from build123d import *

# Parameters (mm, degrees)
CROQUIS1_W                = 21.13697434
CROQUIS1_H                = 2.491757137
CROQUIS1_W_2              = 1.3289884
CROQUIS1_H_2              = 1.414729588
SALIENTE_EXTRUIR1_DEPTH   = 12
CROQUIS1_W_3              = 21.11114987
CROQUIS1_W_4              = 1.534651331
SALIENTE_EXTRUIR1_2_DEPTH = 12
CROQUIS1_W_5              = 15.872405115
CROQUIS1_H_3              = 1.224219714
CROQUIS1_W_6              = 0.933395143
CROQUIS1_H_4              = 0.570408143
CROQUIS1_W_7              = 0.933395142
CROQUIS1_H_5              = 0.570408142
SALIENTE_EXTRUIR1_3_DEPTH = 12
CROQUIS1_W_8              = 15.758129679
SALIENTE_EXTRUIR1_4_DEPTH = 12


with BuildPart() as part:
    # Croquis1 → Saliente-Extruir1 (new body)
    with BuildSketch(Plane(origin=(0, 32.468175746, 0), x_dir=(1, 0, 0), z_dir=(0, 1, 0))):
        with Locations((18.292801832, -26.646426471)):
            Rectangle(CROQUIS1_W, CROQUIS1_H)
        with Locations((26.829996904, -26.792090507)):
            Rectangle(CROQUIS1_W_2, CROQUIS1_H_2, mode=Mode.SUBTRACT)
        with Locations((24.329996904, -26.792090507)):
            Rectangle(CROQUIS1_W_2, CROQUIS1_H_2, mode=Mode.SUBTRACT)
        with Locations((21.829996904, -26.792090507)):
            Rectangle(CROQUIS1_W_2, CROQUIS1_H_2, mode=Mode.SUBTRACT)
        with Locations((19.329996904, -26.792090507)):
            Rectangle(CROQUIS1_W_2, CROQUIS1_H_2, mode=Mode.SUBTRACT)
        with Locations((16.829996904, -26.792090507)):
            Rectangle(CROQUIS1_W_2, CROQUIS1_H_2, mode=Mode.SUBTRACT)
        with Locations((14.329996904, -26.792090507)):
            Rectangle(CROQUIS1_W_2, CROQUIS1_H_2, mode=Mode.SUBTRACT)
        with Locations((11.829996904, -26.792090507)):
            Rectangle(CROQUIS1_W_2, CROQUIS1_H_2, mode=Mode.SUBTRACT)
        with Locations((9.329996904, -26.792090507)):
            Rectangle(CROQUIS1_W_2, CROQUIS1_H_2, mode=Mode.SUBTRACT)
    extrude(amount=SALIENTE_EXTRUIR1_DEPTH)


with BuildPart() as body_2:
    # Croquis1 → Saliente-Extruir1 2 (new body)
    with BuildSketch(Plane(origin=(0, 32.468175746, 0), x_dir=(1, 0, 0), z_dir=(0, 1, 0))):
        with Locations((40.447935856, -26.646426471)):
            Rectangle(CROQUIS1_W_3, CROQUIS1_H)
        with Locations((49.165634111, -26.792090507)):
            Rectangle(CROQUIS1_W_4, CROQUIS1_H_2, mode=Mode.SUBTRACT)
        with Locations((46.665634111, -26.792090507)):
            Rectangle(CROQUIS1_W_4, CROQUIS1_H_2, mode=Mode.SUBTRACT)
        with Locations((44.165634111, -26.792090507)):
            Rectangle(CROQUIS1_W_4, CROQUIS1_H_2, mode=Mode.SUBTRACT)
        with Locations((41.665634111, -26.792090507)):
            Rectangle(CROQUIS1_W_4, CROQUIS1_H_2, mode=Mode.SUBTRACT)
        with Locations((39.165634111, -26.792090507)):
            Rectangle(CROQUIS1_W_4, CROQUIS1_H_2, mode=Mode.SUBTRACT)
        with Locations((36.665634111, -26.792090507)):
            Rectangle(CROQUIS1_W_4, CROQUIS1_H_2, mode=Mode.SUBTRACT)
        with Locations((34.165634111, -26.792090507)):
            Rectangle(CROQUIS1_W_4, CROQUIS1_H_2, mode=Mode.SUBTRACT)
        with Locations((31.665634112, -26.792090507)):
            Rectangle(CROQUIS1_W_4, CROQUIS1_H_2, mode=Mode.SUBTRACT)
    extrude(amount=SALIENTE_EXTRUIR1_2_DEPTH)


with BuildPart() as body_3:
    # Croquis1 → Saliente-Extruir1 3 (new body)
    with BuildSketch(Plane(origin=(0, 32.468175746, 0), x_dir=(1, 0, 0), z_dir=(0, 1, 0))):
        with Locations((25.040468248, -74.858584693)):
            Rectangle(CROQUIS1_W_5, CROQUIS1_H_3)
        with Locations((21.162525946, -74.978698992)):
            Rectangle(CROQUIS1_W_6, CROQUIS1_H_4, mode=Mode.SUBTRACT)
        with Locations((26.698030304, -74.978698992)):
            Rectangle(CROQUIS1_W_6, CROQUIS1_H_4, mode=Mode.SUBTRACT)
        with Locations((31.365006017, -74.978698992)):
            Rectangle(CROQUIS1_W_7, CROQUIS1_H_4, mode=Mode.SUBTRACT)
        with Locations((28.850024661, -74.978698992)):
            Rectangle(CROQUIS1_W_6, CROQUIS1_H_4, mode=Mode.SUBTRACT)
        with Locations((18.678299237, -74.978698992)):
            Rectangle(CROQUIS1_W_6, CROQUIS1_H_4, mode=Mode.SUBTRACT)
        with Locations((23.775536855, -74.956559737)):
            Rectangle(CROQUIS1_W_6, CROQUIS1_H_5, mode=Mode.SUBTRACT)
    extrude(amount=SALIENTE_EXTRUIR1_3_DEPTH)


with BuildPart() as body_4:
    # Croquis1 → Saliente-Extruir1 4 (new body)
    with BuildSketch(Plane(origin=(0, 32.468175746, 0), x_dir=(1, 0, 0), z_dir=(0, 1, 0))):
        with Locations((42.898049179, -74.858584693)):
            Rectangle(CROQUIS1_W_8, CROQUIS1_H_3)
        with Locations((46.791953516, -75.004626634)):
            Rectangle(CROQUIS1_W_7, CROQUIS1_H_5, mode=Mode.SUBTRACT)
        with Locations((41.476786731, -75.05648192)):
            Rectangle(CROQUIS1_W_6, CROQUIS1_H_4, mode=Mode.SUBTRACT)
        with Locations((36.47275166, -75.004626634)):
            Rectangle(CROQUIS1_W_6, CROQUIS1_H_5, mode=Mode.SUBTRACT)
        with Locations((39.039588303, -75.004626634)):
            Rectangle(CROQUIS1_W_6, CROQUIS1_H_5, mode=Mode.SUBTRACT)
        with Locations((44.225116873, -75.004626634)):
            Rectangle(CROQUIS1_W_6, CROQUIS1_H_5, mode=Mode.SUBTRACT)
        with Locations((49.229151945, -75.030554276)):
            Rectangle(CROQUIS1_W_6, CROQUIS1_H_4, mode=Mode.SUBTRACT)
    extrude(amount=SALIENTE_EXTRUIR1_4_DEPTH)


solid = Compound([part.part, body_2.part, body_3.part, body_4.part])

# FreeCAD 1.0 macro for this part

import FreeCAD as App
import Part
import Sketcher
from FreeCAD import Vector


def add_polygon(sketch, points):
    """Adds a closed chain of lines whose ends are joined by coincident constraints."""
    first, n = sketch.GeometryCount, len(points)
    for a, b in zip(points, points[1:] + points[:1]):
        sketch.addGeometry(Part.LineSegment(App.Vector(*a, 0), App.Vector(*b, 0)), False)
    for i in range(n):
        sketch.addConstraint(Sketcher.Constraint("Coincident", first + i, 2, first + (i + 1) % n, 1))

doc = App.newDocument("Part")
body = doc.addObject("PartDesign::Body", "Body")

# Sketch on XZ plane
sketch1 = doc.addObject("Sketcher::SketchObject", "Sketch")
body.addObject(sketch1)
sketch1.AttachmentSupport = (doc.XZ_Plane, [""])
sketch1.MapMode = "FlatFace"
sketch1.AttachmentOffset = App.Placement(Vector(0, 0, -32.468176), App.Rotation())
add_polygon(sketch1, [(7.7, 25.4), (7.7, 27.9), (28.9, 27.9), (28.9, 25.4)])  # lines 0-3
add_polygon(sketch1, [(10, 27.5), (8.7, 27.5), (8.7, 26.1), (10, 26.1)])  # lines 4-7
add_polygon(sketch1, [(12.5, 27.5), (11.2, 27.5), (11.2, 26.1), (12.5, 26.1)])  # lines 8-11
add_polygon(sketch1, [(15, 27.5), (13.7, 27.5), (13.7, 26.1), (15, 26.1)])  # lines 12-15
add_polygon(sketch1, [(17.5, 27.5), (16.2, 27.5), (16.2, 26.1), (17.5, 26.1)])  # lines 16-19
add_polygon(sketch1, [(20, 27.5), (18.7, 27.5), (18.7, 26.1), (20, 26.1)])  # lines 20-23
add_polygon(sketch1, [(22.5, 27.5), (21.2, 27.5), (21.2, 26.1), (22.5, 26.1)])  # lines 24-27
add_polygon(sketch1, [(25, 27.5), (23.7, 27.5), (23.7, 26.1), (25, 26.1)])  # lines 28-31
add_polygon(sketch1, [(27.5, 27.5), (26.2, 27.5), (26.2, 26.1), (27.5, 26.1)])  # lines 32-35
sketch1.addConstraint([
    Sketcher.Constraint("Vertical", 0),
    Sketcher.Constraint("Horizontal", 1),
    Sketcher.Constraint("Vertical", 2),
    Sketcher.Constraint("Horizontal", 3),
    Sketcher.Constraint("Horizontal", 4),
    Sketcher.Constraint("Vertical", 5),
    Sketcher.Constraint("Horizontal", 6),
    Sketcher.Constraint("Vertical", 7),
    Sketcher.Constraint("Horizontal", 8),
    Sketcher.Constraint("Vertical", 9),
    Sketcher.Constraint("Horizontal", 10),
    Sketcher.Constraint("Vertical", 11),
    Sketcher.Constraint("Horizontal", 12),
    Sketcher.Constraint("Vertical", 13),
    Sketcher.Constraint("Horizontal", 14),
    Sketcher.Constraint("Vertical", 15),
    Sketcher.Constraint("Horizontal", 16),
    Sketcher.Constraint("Vertical", 17),
    Sketcher.Constraint("Horizontal", 18),
    Sketcher.Constraint("Vertical", 19),
    Sketcher.Constraint("Horizontal", 20),
    Sketcher.Constraint("Vertical", 21),
    Sketcher.Constraint("Horizontal", 22),
    Sketcher.Constraint("Vertical", 23),
    Sketcher.Constraint("Horizontal", 24),
    Sketcher.Constraint("Vertical", 25),
    Sketcher.Constraint("Horizontal", 26),
    Sketcher.Constraint("Vertical", 27),
    Sketcher.Constraint("Horizontal", 28),
    Sketcher.Constraint("Vertical", 29),
    Sketcher.Constraint("Horizontal", 30),
    Sketcher.Constraint("Vertical", 31),
    Sketcher.Constraint("Horizontal", 32),
    Sketcher.Constraint("Vertical", 33),
    Sketcher.Constraint("Horizontal", 34),
    Sketcher.Constraint("Vertical", 35),
    Sketcher.Constraint("Horizontal", 7, 2, 8, 2),
    Sketcher.Constraint("Horizontal", 6, 2, 9, 2),
    Sketcher.Constraint("Horizontal", 11, 2, 12, 2),
    Sketcher.Constraint("Horizontal", 10, 2, 13, 2),
    Sketcher.Constraint("Horizontal", 15, 2, 16, 2),
    Sketcher.Constraint("Horizontal", 14, 2, 17, 2),
    Sketcher.Constraint("Horizontal", 19, 2, 20, 2),
    Sketcher.Constraint("Horizontal", 18, 2, 21, 2),
    Sketcher.Constraint("Horizontal", 23, 2, 24, 2),
    Sketcher.Constraint("Horizontal", 22, 2, 25, 2),
    Sketcher.Constraint("Horizontal", 27, 2, 28, 2),
    Sketcher.Constraint("Horizontal", 26, 2, 29, 2),
    Sketcher.Constraint("Horizontal", 31, 2, 32, 2),
    Sketcher.Constraint("Horizontal", 30, 2, 33, 2),
    Sketcher.Constraint("Equal", 6, 8),
    Sketcher.Constraint("Equal", 10, 12),
    Sketcher.Constraint("Equal", 14, 16),
    Sketcher.Constraint("Equal", 18, 20),
    Sketcher.Constraint("Equal", 22, 24),
    Sketcher.Constraint("Equal", 26, 28),
    Sketcher.Constraint("Equal", 30, 32),
    Sketcher.Constraint("DistanceX", 4, 2, 8, 2, 2.5),
    Sketcher.Constraint("DistanceX", 8, 2, 12, 2, 2.5),
    Sketcher.Constraint("DistanceX", 12, 2, 16, 2, 2.5),
    Sketcher.Constraint("DistanceX", 16, 2, 20, 2, 2.5),
    Sketcher.Constraint("DistanceX", 20, 2, 24, 2, 2.5),
    Sketcher.Constraint("DistanceX", 24, 2, 28, 2, 2.5),
    Sketcher.Constraint("DistanceX", 28, 2, 32, 2, 2.5),
    Sketcher.Constraint("DistanceX", 4, 2, 4, 1, 1.328988),
    Sketcher.Constraint("DistanceY", 5, 2, 5, 1, 1.41473),
    Sketcher.Constraint("DistanceX", 1, 1, 1, 2, 21.136974),
    Sketcher.Constraint("DistanceY", 0, 1, 0, 2, 2.491757),
    Sketcher.Constraint("DistanceX", -1, 1, 1, 2, 28.861289),
    Sketcher.Constraint("DistanceX", -1, 1, 6, 2, 9.994491),
    Sketcher.Constraint("DistanceY", 4, 2, 0, 2, 0.39285),
    Sketcher.Constraint("DistanceY", -1, 1, 0, 2, 27.892305),
])
pad1 = doc.addObject("PartDesign::Pad", "Pad")
body.addObject(pad1)
pad1.Profile = sketch1
pad1.Length = 12
pad1.Reversed = True
body2 = doc.addObject("PartDesign::Body", "Body001")

# Sketch on XZ plane
sketch2 = doc.addObject("Sketcher::SketchObject", "Sketch001")
body2.addObject(sketch2)
sketch2.AttachmentSupport = (doc.getObject("XZ_Plane001"), [""])
sketch2.MapMode = "FlatFace"
sketch2.AttachmentOffset = App.Placement(Vector(0, 0, -32.468176), App.Rotation())
add_polygon(sketch2, [(29.9, 25.4), (29.9, 27.9), (51, 27.9), (51, 25.4)])  # lines 0-3
add_polygon(sketch2, [(32.4, 27.5), (30.9, 27.5), (30.9, 26.1), (32.4, 26.1)])  # lines 4-7
add_polygon(sketch2, [(34.9, 27.5), (33.4, 27.5), (33.4, 26.1), (34.9, 26.1)])  # lines 8-11
add_polygon(sketch2, [(37.4, 27.5), (35.9, 27.5), (35.9, 26.1), (37.4, 26.1)])  # lines 12-15
add_polygon(sketch2, [(39.9, 27.5), (38.4, 27.5), (38.4, 26.1), (39.9, 26.1)])  # lines 16-19
add_polygon(sketch2, [(42.4, 27.5), (40.9, 27.5), (40.9, 26.1), (42.4, 26.1)])  # lines 20-23
add_polygon(sketch2, [(44.9, 27.5), (43.4, 27.5), (43.4, 26.1), (44.9, 26.1)])  # lines 24-27
add_polygon(sketch2, [(47.4, 27.5), (45.9, 27.5), (45.9, 26.1), (47.4, 26.1)])  # lines 28-31
add_polygon(sketch2, [(49.9, 27.5), (48.4, 27.5), (48.4, 26.1), (49.9, 26.1)])  # lines 32-35
sketch2.addConstraint([
    Sketcher.Constraint("Vertical", 0),
    Sketcher.Constraint("Horizontal", 1),
    Sketcher.Constraint("Vertical", 2),
    Sketcher.Constraint("Horizontal", 3),
    Sketcher.Constraint("Horizontal", 4),
    Sketcher.Constraint("Vertical", 5),
    Sketcher.Constraint("Horizontal", 6),
    Sketcher.Constraint("Vertical", 7),
    Sketcher.Constraint("Horizontal", 8),
    Sketcher.Constraint("Vertical", 9),
    Sketcher.Constraint("Horizontal", 10),
    Sketcher.Constraint("Vertical", 11),
    Sketcher.Constraint("Horizontal", 12),
    Sketcher.Constraint("Vertical", 13),
    Sketcher.Constraint("Horizontal", 14),
    Sketcher.Constraint("Vertical", 15),
    Sketcher.Constraint("Horizontal", 16),
    Sketcher.Constraint("Vertical", 17),
    Sketcher.Constraint("Horizontal", 18),
    Sketcher.Constraint("Vertical", 19),
    Sketcher.Constraint("Horizontal", 20),
    Sketcher.Constraint("Vertical", 21),
    Sketcher.Constraint("Horizontal", 22),
    Sketcher.Constraint("Vertical", 23),
    Sketcher.Constraint("Horizontal", 24),
    Sketcher.Constraint("Vertical", 25),
    Sketcher.Constraint("Horizontal", 26),
    Sketcher.Constraint("Vertical", 27),
    Sketcher.Constraint("Horizontal", 28),
    Sketcher.Constraint("Vertical", 29),
    Sketcher.Constraint("Horizontal", 30),
    Sketcher.Constraint("Vertical", 31),
    Sketcher.Constraint("Horizontal", 32),
    Sketcher.Constraint("Vertical", 33),
    Sketcher.Constraint("Horizontal", 34),
    Sketcher.Constraint("Vertical", 35),
    Sketcher.Constraint("Horizontal", 7, 2, 8, 2),
    Sketcher.Constraint("Horizontal", 6, 2, 9, 2),
    Sketcher.Constraint("Horizontal", 11, 2, 12, 2),
    Sketcher.Constraint("Horizontal", 10, 2, 13, 2),
    Sketcher.Constraint("Horizontal", 15, 2, 16, 2),
    Sketcher.Constraint("Horizontal", 14, 2, 17, 2),
    Sketcher.Constraint("Horizontal", 19, 2, 20, 2),
    Sketcher.Constraint("Horizontal", 18, 2, 21, 2),
    Sketcher.Constraint("Horizontal", 23, 2, 24, 2),
    Sketcher.Constraint("Horizontal", 22, 2, 25, 2),
    Sketcher.Constraint("Horizontal", 27, 2, 28, 2),
    Sketcher.Constraint("Horizontal", 26, 2, 29, 2),
    Sketcher.Constraint("Horizontal", 31, 2, 32, 2),
    Sketcher.Constraint("Horizontal", 30, 2, 33, 2),
    Sketcher.Constraint("Equal", 6, 8),
    Sketcher.Constraint("Equal", 10, 12),
    Sketcher.Constraint("Equal", 14, 16),
    Sketcher.Constraint("Equal", 18, 20),
    Sketcher.Constraint("Equal", 22, 24),
    Sketcher.Constraint("Equal", 26, 28),
    Sketcher.Constraint("Equal", 30, 32),
    Sketcher.Constraint("DistanceX", 4, 2, 8, 2, 2.5),
    Sketcher.Constraint("DistanceX", 8, 2, 12, 2, 2.5),
    Sketcher.Constraint("DistanceX", 12, 2, 16, 2, 2.5),
    Sketcher.Constraint("DistanceX", 16, 2, 20, 2, 2.5),
    Sketcher.Constraint("DistanceX", 20, 2, 24, 2, 2.5),
    Sketcher.Constraint("DistanceX", 24, 2, 28, 2, 2.5),
    Sketcher.Constraint("DistanceX", 28, 2, 32, 2, 2.5),
    Sketcher.Constraint("DistanceX", 1, 1, 1, 2, 21.11115),
    Sketcher.Constraint("DistanceX", 4, 2, 4, 1, 1.534651),
    Sketcher.Constraint("DistanceY", 5, 2, 5, 1, 1.41473),
    Sketcher.Constraint("DistanceX", 3, 2, 6, 2, 2.540599),
    Sketcher.Constraint("DistanceY", 0, 1, 0, 2, 2.491757),
    Sketcher.Constraint("DistanceX", -1, 1, 0, 2, 29.892361),
    Sketcher.Constraint("DistanceY", 4, 2, 0, 2, 0.39285),
    Sketcher.Constraint("DistanceY", -1, 1, 0, 2, 27.892305),
])
pad2 = doc.addObject("PartDesign::Pad", "Pad001")
body2.addObject(pad2)
pad2.Profile = sketch2
pad2.Length = 12
pad2.Reversed = True
body3 = doc.addObject("PartDesign::Body", "Body002")

# Sketch on XZ plane
sketch3 = doc.addObject("Sketcher::SketchObject", "Sketch002")
body3.addObject(sketch3)
sketch3.AttachmentSupport = (doc.getObject("XZ_Plane002"), [""])
sketch3.MapMode = "FlatFace"
sketch3.AttachmentOffset = App.Placement(Vector(0, 0, -32.468176), App.Rotation())
add_polygon(sketch3, [(17.1, 74.2), (17.1, 75.5), (33, 75.5), (33, 74.2)])  # lines 0-3
add_polygon(sketch3, [(19.1, 75.3), (18.2, 75.3), (18.2, 74.7), (19.1, 74.7)])  # lines 4-7
add_polygon(sketch3, [(21.6, 75.3), (20.7, 75.3), (20.7, 74.7), (21.6, 74.7)])  # lines 8-11
add_polygon(sketch3, [(27.2, 75.3), (26.2, 75.3), (26.2, 74.7), (27.2, 74.7)])  # lines 12-15
add_polygon(sketch3, [(29.3, 75.3), (28.4, 75.3), (28.4, 74.7), (29.3, 74.7)])  # lines 16-19
add_polygon(sketch3, [(31.8, 75.3), (30.9, 75.3), (30.9, 74.7), (31.8, 74.7)])  # lines 20-23
add_polygon(sketch3, [(24.2, 75.2), (23.3, 75.2), (23.3, 74.7), (24.2, 74.7)])  # lines 24-27
sketch3.addConstraint([
    Sketcher.Constraint("Vertical", 0),
    Sketcher.Constraint("Horizontal", 1),
    Sketcher.Constraint("Vertical", 2),
    Sketcher.Constraint("Horizontal", 3),
    Sketcher.Constraint("Horizontal", 4),
    Sketcher.Constraint("Vertical", 5),
    Sketcher.Constraint("Horizontal", 6),
    Sketcher.Constraint("Vertical", 7),
    Sketcher.Constraint("Horizontal", 8),
    Sketcher.Constraint("Vertical", 9),
    Sketcher.Constraint("Horizontal", 10),
    Sketcher.Constraint("Vertical", 11),
    Sketcher.Constraint("Horizontal", 12),
    Sketcher.Constraint("Vertical", 13),
    Sketcher.Constraint("Horizontal", 14),
    Sketcher.Constraint("Vertical", 15),
    Sketcher.Constraint("Horizontal", 16),
    Sketcher.Constraint("Vertical", 17),
    Sketcher.Constraint("Horizontal", 18),
    Sketcher.Constraint("Vertical", 19),
    Sketcher.Constraint("Horizontal", 20),
    Sketcher.Constraint("Vertical", 21),
    Sketcher.Constraint("Horizontal", 22),
    Sketcher.Constraint("Vertical", 23),
    Sketcher.Constraint("Horizontal", 24),
    Sketcher.Constraint("Vertical", 25),
    Sketcher.Constraint("Horizontal", 26),
    Sketcher.Constraint("Vertical", 27),
    Sketcher.Constraint("Horizontal", 7, 2, 8, 2),
    Sketcher.Constraint("Horizontal", 6, 2, 9, 2),
    Sketcher.Constraint("Horizontal", 11, 2, 12, 2),
    Sketcher.Constraint("Horizontal", 10, 2, 13, 2),
    Sketcher.Constraint("Horizontal", 15, 2, 16, 2),
    Sketcher.Constraint("Horizontal", 14, 2, 17, 2),
    Sketcher.Constraint("Horizontal", 19, 2, 20, 2),
    Sketcher.Constraint("Horizontal", 18, 2, 21, 2),
    Sketcher.Constraint("Equal", 6, 8),
    Sketcher.Constraint("Equal", 10, 12),
    Sketcher.Constraint("Equal", 14, 16),
    Sketcher.Constraint("Equal", 18, 20),
    Sketcher.Constraint("Equal", 22, 24),
    Sketcher.Constraint("Equal", 23, 25),
    Sketcher.Constraint("DistanceY", 0, 1, 0, 2, 1.22422),
    Sketcher.Constraint("DistanceY", 5, 2, 5, 1, 0.570408),
    Sketcher.Constraint("DistanceX", -1, 1, 4, 2, 18.211602),
    Sketcher.Constraint("DistanceY", 5, 2, 0, 2, 0.7772),
    Sketcher.Constraint("DistanceX", 15, 2, 16, 2, 1.218599),
    Sketcher.Constraint("DistanceX", 26, 2, 13, 2, 1.989098),
    Sketcher.Constraint("DistanceX", 1, 1, 1, 2, 15.872405),
    Sketcher.Constraint("DistanceX", 4, 2, 4, 1, 0.933395),
    Sketcher.Constraint("DistanceX", -1, 1, 1, 2, 32.976671),
    Sketcher.Constraint("DistanceX", -1, 1, 8, 2, 20.695828),
    Sketcher.Constraint("DistanceX", -1, 1, 20, 2, 30.898308),
    Sketcher.Constraint("DistanceX", -1, 1, 24, 2, 23.308839),
    Sketcher.Constraint("DistanceY", 24, 2, 11, 2, 0.022139),
    Sketcher.Constraint("DistanceY", -1, 1, 0, 2, 75.470695),
])
pad3 = doc.addObject("PartDesign::Pad", "Pad002")
body3.addObject(pad3)
pad3.Profile = sketch3
pad3.Length = 12
pad3.Reversed = True
body4 = doc.addObject("PartDesign::Body", "Body003")

# Sketch on XZ plane
sketch4 = doc.addObject("Sketcher::SketchObject", "Sketch003")
body4.addObject(sketch4)
sketch4.AttachmentSupport = (doc.getObject("XZ_Plane003"), [""])
sketch4.MapMode = "FlatFace"
sketch4.AttachmentOffset = App.Placement(Vector(0, 0, -32.468176), App.Rotation())
add_polygon(sketch4, [(35, 74.2), (35, 75.5), (50.8, 75.5), (50.8, 74.2)])  # lines 0-3
add_polygon(sketch4, [(41.9, 75.3), (41, 75.3), (41, 74.8), (41.9, 74.8)])  # lines 4-7
add_polygon(sketch4, [(36.9, 75.3), (36, 75.3), (36, 74.7), (36.9, 74.7)])  # lines 8-11
add_polygon(sketch4, [(39.5, 75.3), (38.6, 75.3), (38.6, 74.7), (39.5, 74.7)])  # lines 12-15
add_polygon(sketch4, [(44.7, 75.3), (43.8, 75.3), (43.8, 74.7), (44.7, 74.7)])  # lines 16-19
add_polygon(sketch4, [(47.3, 75.3), (46.3, 75.3), (46.3, 74.7), (47.3, 74.7)])  # lines 20-23
add_polygon(sketch4, [(49.7, 75.3), (48.8, 75.3), (48.8, 74.7), (49.7, 74.7)])  # lines 24-27
sketch4.addConstraint([
    Sketcher.Constraint("Vertical", 0),
    Sketcher.Constraint("Horizontal", 1),
    Sketcher.Constraint("Vertical", 2),
    Sketcher.Constraint("Horizontal", 3),
    Sketcher.Constraint("Horizontal", 4),
    Sketcher.Constraint("Vertical", 5),
    Sketcher.Constraint("Horizontal", 6),
    Sketcher.Constraint("Vertical", 7),
    Sketcher.Constraint("Horizontal", 8),
    Sketcher.Constraint("Vertical", 9),
    Sketcher.Constraint("Horizontal", 10),
    Sketcher.Constraint("Vertical", 11),
    Sketcher.Constraint("Horizontal", 12),
    Sketcher.Constraint("Vertical", 13),
    Sketcher.Constraint("Horizontal", 14),
    Sketcher.Constraint("Vertical", 15),
    Sketcher.Constraint("Horizontal", 16),
    Sketcher.Constraint("Vertical", 17),
    Sketcher.Constraint("Horizontal", 18),
    Sketcher.Constraint("Vertical", 19),
    Sketcher.Constraint("Horizontal", 20),
    Sketcher.Constraint("Vertical", 21),
    Sketcher.Constraint("Horizontal", 22),
    Sketcher.Constraint("Vertical", 23),
    Sketcher.Constraint("Horizontal", 24),
    Sketcher.Constraint("Vertical", 25),
    Sketcher.Constraint("Horizontal", 26),
    Sketcher.Constraint("Vertical", 27),
    Sketcher.Constraint("Horizontal", 11, 2, 12, 2),
    Sketcher.Constraint("Horizontal", 10, 2, 13, 2),
    Sketcher.Constraint("Horizontal", 15, 2, 16, 2),
    Sketcher.Constraint("Horizontal", 14, 2, 17, 2),
    Sketcher.Constraint("Horizontal", 19, 2, 20, 2),
    Sketcher.Constraint("Horizontal", 18, 2, 21, 2),
    Sketcher.Constraint("Equal", 6, 8),
    Sketcher.Constraint("Equal", 10, 12),
    Sketcher.Constraint("Equal", 14, 16),
    Sketcher.Constraint("Equal", 18, 20),
    Sketcher.Constraint("Equal", 22, 24),
    Sketcher.Constraint("Equal", 7, 9),
    Sketcher.Constraint("Equal", 23, 25),
    Sketcher.Constraint("DistanceX", 1, 1, 1, 2, 15.75813),
    Sketcher.Constraint("DistanceY", 0, 1, 0, 2, 1.22422),
    Sketcher.Constraint("DistanceY", 5, 2, 5, 1, 0.570408),
    Sketcher.Constraint("DistanceX", 3, 2, 6, 2, 6.9245),
    Sketcher.Constraint("DistanceX", 12, 2, 4, 2, 2.437198),
    Sketcher.Constraint("DistanceX", 20, 2, 24, 2, 2.437198),
    Sketcher.Constraint("DistanceX", 4, 2, 4, 1, 0.933395),
    Sketcher.Constraint("DistanceX", -1, 1, 4, 2, 41.010089),
    Sketcher.Constraint("DistanceY", -1, 1, 8, 2, 75.289831),
    Sketcher.Constraint("DistanceX", -1, 1, 10, 2, 36.939449),
    Sketcher.Constraint("DistanceX", -1, 1, 16, 2, 43.758419),
    Sketcher.Constraint("DistanceX", -1, 1, 22, 2, 47.258651),
    Sketcher.Constraint("DistanceY", -1, 1, 24, 2, 75.315758),
    Sketcher.Constraint("DistanceY", 4, 2, 0, 2, 0.129009),
    Sketcher.Constraint("DistanceY", 9, 2, 0, 2, 0.751272),
])
pad4 = doc.addObject("PartDesign::Pad", "Pad003")
body4.addObject(pad4)
pad4.Profile = sketch4
pad4.Length = 12
pad4.Reversed = True

doc.recompute()
